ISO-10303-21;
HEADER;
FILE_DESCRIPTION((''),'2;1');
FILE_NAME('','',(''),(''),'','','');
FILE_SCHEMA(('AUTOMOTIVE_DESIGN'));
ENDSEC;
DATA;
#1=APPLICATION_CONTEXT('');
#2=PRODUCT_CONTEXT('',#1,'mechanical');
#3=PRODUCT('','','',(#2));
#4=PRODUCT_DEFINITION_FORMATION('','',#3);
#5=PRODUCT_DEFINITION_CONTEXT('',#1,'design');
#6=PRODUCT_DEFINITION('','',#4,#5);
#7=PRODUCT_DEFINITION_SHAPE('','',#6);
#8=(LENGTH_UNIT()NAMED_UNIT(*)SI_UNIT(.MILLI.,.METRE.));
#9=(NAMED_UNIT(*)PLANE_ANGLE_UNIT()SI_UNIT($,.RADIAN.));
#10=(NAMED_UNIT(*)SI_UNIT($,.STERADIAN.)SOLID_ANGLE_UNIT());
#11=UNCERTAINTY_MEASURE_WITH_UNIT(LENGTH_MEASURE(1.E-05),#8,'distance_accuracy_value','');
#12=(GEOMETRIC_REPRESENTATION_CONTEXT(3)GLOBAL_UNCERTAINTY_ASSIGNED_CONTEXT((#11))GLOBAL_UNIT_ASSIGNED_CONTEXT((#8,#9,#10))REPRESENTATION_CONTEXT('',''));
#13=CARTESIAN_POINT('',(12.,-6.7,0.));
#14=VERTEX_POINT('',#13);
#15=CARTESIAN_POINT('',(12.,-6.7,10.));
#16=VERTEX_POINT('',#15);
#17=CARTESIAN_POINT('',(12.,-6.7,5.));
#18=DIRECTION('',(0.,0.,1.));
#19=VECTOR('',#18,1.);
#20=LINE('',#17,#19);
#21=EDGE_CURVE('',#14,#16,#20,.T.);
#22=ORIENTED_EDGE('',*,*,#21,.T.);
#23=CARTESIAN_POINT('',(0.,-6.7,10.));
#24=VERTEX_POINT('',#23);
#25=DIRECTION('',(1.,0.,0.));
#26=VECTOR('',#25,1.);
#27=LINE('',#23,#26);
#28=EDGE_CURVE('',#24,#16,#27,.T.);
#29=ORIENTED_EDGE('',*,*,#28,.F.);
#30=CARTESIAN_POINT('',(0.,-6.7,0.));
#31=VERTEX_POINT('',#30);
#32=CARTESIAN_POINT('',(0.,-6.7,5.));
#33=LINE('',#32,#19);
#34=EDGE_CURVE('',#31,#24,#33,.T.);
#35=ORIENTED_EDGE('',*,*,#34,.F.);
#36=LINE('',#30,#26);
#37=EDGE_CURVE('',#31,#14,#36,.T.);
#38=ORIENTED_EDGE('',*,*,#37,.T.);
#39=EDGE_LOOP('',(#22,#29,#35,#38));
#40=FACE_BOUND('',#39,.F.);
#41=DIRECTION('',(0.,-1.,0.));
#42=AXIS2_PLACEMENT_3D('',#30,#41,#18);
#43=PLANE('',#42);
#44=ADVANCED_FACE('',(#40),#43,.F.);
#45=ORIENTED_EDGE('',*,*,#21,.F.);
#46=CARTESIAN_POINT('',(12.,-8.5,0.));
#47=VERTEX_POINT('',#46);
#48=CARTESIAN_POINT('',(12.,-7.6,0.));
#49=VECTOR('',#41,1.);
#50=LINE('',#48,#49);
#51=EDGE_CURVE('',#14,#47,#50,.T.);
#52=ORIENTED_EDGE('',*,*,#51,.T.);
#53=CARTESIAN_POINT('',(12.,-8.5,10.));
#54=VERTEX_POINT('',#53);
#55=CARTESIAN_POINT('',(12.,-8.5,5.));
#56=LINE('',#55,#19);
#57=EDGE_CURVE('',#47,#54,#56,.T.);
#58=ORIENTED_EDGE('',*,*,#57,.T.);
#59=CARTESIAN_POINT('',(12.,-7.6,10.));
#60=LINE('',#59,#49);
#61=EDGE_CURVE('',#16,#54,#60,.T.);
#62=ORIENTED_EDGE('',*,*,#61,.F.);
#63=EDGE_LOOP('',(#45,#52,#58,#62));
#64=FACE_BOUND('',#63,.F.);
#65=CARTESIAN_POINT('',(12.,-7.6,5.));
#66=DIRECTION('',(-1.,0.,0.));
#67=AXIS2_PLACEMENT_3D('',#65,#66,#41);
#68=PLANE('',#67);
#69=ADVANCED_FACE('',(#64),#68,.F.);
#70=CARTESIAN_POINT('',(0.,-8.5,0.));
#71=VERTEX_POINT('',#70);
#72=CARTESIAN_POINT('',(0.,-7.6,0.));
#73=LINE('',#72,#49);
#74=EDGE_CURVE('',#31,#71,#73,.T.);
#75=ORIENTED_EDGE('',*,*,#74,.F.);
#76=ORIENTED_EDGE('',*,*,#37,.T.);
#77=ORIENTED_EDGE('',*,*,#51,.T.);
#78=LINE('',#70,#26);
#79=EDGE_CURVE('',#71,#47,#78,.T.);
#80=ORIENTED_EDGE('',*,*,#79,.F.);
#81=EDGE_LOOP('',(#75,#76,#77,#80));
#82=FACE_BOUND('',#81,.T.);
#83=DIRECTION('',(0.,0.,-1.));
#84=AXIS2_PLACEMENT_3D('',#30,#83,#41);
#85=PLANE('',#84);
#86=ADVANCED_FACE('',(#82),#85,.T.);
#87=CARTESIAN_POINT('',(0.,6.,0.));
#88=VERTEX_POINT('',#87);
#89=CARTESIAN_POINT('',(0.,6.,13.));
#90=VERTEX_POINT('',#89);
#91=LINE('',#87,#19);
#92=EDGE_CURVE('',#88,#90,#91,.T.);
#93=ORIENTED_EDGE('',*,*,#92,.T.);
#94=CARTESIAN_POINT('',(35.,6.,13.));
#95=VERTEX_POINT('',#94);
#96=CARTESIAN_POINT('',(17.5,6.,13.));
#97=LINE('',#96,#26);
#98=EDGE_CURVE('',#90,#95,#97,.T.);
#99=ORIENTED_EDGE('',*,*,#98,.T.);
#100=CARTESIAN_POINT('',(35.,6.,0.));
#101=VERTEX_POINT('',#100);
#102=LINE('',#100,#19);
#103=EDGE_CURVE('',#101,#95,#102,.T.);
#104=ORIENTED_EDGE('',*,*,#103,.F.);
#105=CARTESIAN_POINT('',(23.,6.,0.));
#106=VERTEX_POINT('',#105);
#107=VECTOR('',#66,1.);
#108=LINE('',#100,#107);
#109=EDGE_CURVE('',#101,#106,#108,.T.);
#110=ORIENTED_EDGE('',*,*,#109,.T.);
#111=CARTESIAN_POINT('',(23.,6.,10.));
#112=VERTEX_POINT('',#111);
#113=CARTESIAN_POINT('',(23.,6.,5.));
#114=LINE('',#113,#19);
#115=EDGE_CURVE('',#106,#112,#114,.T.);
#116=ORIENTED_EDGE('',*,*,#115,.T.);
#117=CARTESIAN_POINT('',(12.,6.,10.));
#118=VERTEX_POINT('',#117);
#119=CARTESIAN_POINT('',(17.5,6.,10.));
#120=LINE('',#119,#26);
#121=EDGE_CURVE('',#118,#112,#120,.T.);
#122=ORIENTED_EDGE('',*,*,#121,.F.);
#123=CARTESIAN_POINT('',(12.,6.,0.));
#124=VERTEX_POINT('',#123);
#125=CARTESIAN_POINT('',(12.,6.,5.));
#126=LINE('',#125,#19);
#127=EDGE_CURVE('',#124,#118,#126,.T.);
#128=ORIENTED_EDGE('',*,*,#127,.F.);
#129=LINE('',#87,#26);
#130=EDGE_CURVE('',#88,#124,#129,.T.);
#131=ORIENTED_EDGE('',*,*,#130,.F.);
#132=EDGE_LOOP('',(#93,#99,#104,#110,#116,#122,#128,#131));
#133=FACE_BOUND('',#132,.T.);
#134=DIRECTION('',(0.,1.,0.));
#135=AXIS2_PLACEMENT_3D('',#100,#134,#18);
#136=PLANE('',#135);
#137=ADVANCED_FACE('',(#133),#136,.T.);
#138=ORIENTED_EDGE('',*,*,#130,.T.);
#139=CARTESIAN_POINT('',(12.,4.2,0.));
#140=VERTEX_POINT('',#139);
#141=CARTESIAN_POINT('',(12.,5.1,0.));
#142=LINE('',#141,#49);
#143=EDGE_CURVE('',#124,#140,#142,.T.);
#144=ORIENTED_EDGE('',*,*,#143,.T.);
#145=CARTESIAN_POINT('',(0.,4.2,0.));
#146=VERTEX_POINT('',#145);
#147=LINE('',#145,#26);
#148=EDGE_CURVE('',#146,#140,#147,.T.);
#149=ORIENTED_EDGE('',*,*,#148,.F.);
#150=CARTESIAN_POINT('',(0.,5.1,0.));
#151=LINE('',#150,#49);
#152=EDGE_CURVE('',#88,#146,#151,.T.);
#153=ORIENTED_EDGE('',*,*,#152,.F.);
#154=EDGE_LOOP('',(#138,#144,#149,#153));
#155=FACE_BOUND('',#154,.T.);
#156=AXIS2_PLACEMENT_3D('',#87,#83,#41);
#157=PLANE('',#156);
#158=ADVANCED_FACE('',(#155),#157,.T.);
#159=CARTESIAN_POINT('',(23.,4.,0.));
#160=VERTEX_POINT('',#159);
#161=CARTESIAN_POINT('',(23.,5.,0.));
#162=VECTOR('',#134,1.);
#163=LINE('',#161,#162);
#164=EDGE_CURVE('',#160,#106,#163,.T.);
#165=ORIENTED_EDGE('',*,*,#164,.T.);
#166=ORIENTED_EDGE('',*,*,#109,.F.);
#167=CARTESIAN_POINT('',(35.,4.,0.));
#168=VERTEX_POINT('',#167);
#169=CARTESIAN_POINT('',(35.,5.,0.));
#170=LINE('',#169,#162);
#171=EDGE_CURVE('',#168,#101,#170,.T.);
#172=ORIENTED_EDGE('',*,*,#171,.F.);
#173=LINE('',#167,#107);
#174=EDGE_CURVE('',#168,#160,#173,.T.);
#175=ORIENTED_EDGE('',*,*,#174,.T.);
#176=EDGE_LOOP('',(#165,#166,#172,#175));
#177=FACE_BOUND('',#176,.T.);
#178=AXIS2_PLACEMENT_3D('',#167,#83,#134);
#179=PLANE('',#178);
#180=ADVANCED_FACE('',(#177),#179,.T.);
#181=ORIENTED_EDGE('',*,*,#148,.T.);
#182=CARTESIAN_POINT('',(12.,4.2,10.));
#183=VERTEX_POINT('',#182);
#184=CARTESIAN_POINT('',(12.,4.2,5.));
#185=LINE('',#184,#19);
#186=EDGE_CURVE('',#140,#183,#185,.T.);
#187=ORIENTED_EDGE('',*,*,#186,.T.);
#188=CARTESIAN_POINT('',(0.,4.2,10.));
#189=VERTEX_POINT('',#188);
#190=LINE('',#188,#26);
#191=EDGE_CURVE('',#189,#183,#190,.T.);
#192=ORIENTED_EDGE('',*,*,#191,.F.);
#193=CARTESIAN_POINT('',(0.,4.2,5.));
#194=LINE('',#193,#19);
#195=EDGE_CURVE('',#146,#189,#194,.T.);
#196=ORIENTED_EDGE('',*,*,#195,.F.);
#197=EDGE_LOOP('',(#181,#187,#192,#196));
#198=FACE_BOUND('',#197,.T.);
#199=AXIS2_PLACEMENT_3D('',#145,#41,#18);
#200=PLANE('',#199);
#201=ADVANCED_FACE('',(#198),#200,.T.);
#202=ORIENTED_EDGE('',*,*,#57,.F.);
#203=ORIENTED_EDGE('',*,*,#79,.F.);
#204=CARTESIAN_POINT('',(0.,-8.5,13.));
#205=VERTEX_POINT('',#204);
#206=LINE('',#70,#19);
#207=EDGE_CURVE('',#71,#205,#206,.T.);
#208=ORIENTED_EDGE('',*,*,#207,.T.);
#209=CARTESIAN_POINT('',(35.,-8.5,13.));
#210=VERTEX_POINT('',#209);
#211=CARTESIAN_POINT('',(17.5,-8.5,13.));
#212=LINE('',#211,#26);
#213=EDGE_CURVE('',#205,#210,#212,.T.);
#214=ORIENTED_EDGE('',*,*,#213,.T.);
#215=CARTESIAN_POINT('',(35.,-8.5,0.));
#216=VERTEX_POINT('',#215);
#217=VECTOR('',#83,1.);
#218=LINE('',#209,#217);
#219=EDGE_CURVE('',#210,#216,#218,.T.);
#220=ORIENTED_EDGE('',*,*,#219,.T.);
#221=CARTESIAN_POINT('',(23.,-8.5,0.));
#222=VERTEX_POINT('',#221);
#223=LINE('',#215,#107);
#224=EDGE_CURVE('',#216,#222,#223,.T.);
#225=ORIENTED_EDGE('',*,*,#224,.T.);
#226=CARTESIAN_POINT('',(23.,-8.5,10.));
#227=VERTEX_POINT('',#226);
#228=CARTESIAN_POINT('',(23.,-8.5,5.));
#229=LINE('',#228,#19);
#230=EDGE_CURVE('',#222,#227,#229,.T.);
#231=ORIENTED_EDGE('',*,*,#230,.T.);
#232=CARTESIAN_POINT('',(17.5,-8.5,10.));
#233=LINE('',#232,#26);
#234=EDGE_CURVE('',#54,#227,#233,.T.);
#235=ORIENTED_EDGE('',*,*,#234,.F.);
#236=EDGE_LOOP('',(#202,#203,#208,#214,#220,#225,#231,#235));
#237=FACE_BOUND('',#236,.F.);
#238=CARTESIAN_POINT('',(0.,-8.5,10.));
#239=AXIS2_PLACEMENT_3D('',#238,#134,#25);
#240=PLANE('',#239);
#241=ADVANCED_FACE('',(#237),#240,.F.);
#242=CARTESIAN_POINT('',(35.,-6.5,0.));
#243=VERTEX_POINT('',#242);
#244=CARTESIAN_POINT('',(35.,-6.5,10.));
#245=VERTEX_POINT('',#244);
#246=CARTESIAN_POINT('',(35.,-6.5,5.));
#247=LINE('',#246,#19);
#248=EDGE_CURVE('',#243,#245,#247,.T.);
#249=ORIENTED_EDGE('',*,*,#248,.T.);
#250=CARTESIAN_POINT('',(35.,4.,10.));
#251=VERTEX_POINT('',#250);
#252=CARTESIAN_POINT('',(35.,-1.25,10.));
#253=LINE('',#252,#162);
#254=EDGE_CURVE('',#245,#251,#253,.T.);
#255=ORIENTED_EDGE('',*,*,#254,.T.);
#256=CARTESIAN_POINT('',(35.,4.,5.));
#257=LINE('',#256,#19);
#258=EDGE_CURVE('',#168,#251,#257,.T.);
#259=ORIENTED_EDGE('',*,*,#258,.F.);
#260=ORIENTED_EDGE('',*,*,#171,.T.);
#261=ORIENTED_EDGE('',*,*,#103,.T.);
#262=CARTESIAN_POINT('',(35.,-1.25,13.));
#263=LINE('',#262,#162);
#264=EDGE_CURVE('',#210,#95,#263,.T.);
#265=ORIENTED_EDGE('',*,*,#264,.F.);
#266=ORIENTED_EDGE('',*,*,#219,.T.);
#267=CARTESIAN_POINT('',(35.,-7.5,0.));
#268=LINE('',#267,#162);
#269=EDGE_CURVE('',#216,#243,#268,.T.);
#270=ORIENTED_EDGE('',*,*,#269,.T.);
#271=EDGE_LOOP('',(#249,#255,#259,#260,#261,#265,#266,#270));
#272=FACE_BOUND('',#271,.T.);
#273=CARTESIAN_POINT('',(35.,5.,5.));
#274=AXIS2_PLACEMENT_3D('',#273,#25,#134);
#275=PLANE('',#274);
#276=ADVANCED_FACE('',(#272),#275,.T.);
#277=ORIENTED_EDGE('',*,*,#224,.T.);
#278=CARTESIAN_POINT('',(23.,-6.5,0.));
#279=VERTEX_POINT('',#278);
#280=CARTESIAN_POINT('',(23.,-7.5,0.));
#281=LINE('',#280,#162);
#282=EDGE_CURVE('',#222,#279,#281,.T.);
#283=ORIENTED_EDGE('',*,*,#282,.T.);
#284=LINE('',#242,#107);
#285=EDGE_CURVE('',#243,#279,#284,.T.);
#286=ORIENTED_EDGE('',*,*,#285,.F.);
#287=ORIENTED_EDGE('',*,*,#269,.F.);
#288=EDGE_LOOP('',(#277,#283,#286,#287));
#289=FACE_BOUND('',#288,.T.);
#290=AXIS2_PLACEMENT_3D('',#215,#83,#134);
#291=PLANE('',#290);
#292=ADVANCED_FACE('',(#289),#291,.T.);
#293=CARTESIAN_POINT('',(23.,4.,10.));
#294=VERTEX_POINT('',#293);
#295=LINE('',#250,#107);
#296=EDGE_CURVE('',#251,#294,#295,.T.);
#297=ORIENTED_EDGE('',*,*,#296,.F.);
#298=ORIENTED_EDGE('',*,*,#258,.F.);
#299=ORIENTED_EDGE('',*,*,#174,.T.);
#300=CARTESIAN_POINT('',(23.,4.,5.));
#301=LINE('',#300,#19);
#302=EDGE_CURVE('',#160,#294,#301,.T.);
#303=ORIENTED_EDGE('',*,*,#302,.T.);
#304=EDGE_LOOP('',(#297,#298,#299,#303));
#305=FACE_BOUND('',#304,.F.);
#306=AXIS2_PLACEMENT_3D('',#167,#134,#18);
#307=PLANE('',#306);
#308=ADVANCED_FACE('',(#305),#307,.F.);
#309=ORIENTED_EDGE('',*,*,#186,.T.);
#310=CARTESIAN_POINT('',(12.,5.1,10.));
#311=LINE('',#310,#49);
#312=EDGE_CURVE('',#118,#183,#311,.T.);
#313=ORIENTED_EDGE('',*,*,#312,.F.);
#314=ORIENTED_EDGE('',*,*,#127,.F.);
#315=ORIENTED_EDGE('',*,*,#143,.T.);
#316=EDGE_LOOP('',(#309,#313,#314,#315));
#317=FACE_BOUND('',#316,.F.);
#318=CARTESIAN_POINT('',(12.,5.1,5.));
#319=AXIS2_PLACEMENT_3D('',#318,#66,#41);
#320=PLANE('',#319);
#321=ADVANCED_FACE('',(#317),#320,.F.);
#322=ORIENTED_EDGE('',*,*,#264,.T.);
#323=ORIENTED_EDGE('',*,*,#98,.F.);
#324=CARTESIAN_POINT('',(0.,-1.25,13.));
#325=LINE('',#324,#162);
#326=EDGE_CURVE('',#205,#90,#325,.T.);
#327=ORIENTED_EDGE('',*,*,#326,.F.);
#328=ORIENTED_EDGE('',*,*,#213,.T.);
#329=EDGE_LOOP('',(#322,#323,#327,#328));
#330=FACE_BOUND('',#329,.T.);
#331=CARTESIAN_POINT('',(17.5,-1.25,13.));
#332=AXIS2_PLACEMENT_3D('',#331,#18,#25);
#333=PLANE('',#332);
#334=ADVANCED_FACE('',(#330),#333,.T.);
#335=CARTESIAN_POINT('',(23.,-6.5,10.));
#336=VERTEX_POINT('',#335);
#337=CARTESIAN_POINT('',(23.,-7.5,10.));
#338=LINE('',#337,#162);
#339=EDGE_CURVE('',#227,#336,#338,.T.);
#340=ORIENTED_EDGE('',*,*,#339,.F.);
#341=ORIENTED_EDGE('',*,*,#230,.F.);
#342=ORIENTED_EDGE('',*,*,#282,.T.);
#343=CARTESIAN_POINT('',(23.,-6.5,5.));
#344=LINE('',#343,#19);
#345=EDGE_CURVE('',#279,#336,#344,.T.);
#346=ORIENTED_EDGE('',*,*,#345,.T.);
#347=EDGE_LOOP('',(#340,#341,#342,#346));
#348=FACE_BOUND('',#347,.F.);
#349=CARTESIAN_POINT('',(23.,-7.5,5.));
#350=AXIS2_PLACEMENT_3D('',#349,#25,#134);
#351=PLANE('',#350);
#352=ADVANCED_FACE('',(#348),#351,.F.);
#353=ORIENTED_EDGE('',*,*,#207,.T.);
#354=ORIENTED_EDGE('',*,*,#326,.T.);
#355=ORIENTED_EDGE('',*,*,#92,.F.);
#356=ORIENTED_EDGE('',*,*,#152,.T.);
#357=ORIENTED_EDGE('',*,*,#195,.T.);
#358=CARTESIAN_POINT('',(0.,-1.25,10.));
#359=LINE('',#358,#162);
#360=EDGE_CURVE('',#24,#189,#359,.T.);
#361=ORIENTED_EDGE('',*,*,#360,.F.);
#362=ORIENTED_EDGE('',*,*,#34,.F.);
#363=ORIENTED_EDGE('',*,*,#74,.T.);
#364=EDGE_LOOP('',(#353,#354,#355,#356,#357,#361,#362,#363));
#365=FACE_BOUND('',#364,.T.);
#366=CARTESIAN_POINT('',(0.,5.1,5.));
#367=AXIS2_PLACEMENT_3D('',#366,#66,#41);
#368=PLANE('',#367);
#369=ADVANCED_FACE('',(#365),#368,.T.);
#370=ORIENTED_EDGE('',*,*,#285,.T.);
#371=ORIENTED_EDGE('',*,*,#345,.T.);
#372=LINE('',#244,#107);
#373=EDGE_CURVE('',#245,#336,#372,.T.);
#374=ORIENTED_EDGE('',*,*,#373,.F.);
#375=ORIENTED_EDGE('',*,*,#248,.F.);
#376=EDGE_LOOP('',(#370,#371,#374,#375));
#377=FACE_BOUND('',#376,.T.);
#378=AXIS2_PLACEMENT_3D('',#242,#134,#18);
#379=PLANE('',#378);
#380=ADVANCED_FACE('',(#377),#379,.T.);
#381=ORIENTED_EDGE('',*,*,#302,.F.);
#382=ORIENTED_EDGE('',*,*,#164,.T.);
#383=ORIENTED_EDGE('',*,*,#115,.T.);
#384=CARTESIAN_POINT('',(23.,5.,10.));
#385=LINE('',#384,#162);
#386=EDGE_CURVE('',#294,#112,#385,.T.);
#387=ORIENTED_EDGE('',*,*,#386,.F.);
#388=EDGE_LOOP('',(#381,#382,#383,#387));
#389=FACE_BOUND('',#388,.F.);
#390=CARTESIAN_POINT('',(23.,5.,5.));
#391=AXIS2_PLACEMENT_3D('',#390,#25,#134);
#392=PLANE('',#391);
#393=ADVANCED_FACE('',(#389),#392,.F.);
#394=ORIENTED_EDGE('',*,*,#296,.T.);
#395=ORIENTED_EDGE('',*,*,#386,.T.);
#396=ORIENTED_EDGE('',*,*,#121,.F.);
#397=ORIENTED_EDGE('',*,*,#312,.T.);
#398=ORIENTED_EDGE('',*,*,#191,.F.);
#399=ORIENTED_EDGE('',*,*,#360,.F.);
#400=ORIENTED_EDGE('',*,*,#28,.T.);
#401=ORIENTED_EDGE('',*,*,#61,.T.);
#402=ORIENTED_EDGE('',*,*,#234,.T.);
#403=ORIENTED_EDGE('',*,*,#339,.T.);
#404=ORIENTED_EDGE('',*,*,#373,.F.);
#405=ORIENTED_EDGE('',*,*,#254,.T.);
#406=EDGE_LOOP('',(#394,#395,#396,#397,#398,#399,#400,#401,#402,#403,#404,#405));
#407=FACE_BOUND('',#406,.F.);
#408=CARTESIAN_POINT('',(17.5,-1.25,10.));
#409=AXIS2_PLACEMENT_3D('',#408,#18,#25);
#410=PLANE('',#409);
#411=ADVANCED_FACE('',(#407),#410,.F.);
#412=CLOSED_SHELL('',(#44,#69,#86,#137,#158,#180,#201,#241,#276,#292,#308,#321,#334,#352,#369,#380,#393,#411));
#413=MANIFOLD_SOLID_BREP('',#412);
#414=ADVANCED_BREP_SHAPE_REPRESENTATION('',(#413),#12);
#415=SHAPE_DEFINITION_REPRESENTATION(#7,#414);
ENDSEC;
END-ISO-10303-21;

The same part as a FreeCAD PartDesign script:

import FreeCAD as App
import Part
import Sketcher
from FreeCAD import Vector


def add_polygon(sketch, points):
    """Adds a closed chain of lines whose ends are joined by coincident constraints."""
    first, n = sketch.GeometryCount, len(points)
    for a, b in zip(points, points[1:] + points[:1]):
        sketch.addGeometry(Part.LineSegment(App.Vector(*a, 0), App.Vector(*b, 0)), False)
    for i in range(n):
        sketch.addConstraint(Sketcher.Constraint("Coincident", first + i, 2, first + (i + 1) % n, 1))

doc = App.newDocument("Part")
body = doc.addObject("PartDesign::Body", "Body")

# Sketch on XY plane
sketch1 = doc.addObject("Sketcher::SketchObject", "Sketch")
body.addObject(sketch1)
sketch1.AttachmentSupport = (doc.XY_Plane, [""])
sketch1.MapMode = "FlatFace"
sketch1.AttachmentOffset = App.Placement(Vector(0, 0, 10), App.Rotation())
add_polygon(sketch1, [(0, 6), (0, -8), (35, -8), (35, 6)])  # lines 0-3
sketch1.addConstraint([
    Sketcher.Constraint("Vertical", 0),
    Sketcher.Constraint("Horizontal", 1),
    Sketcher.Constraint("Vertical", 2),
    Sketcher.Constraint("Horizontal", 3),
    Sketcher.Constraint("PointOnObject", 0, 2, -2),
    Sketcher.Constraint("DistanceX", 1, 1, 1, 2, 35.0),
    Sketcher.Constraint("DistanceY", 0, 2, 0, 1, 14.5),
    Sketcher.Constraint("DistanceY", -1, 1, 2, 2, 6.0),
])
pad1 = doc.addObject("PartDesign::Pad", "Pad")
body.addObject(pad1)
pad1.Profile = sketch1
pad1.Length = 3

# Sketch on YZ plane
sketch2 = doc.addObject("Sketcher::SketchObject", "Sketch001")
body.addObject(sketch2)
sketch2.AttachmentSupport = (doc.YZ_Plane, [""])
sketch2.MapMode = "FlatFace"
add_polygon(sketch2, [(6, 10), (6, 0), (4.2, 0), (4.2, 10)])  # lines 0-3
add_polygon(sketch2, [(-6.7, 10), (-6.7, 0), (-8.5, 0), (-8.5, 10)])  # lines 4-7
sketch2.addConstraint([
    Sketcher.Constraint("Vertical", 0),
    Sketcher.Constraint("Horizontal", 1),
    Sketcher.Constraint("Vertical", 2),
    Sketcher.Constraint("Horizontal", 3),
    Sketcher.Constraint("Vertical", 4),
    Sketcher.Constraint("Horizontal", 5),
    Sketcher.Constraint("Vertical", 6),
    Sketcher.Constraint("Horizontal", 7),
    Sketcher.Constraint("PointOnObject", 0, 2, -1),
    Sketcher.Constraint("PointOnObject", 4, 2, -1),
    Sketcher.Constraint("Horizontal", 3, 2, 6, 2),
    Sketcher.Constraint("Equal", 3, 5),
    Sketcher.Constraint("DistanceY", 0, 2, 0, 1, 10.0),
    Sketcher.Constraint("DistanceX", 1, 2, 1, 1, 1.8),
    Sketcher.Constraint("DistanceX", -1, 1, 0, 2, 6.0),
    Sketcher.Constraint("DistanceX", 4, 2, -1, 1, 6.7),
])
pad2 = doc.addObject("PartDesign::Pad", "Pad001")
body.addObject(pad2)
pad2.Profile = sketch2
pad2.Length = 12

# Sketch on YZ plane
sketch3 = doc.addObject("Sketcher::SketchObject", "Sketch002")
body.addObject(sketch3)
sketch3.AttachmentSupport = (doc.YZ_Plane, [""])
sketch3.MapMode = "FlatFace"
sketch3.AttachmentOffset = App.Placement(Vector(0, 0, 35), App.Rotation())
add_polygon(sketch3, [(4, 10), (4, 0), (6, 0), (6, 10)])  # lines 0-3
add_polygon(sketch3, [(-8.5, 10), (-8.5, 0), (-6.5, 0), (-6.5, 10)])  # lines 4-7
sketch3.addConstraint([
    Sketcher.Constraint("Vertical", 0),
    Sketcher.Constraint("Horizontal", 1),
    Sketcher.Constraint("Vertical", 2),
    Sketcher.Constraint("Horizontal", 3),
    Sketcher.Constraint("Vertical", 4),
    Sketcher.Constraint("Horizontal", 5),
    Sketcher.Constraint("Vertical", 6),
    Sketcher.Constraint("Horizontal", 7),
    Sketcher.Constraint("PointOnObject", 0, 2, -1),
    Sketcher.Constraint("PointOnObject", 4, 2, -1),
    Sketcher.Constraint("Horizontal", 3, 2, 6, 2),
    Sketcher.Constraint("Equal", 3, 5),
    Sketcher.Constraint("DistanceX", 1, 1, 1, 2, 2.0),
    Sketcher.Constraint("DistanceY", 0, 2, 0, 1, 10.0),
    Sketcher.Constraint("DistanceX", -1, 1, 0, 2, 4.0),
    Sketcher.Constraint("DistanceX", 4, 2, -1, 1, 8.5),
])
pad3 = doc.addObject("PartDesign::Pad", "Pad002")
body.addObject(pad3)
pad3.Profile = sketch3
pad3.Length = 12
pad3.Reversed = True

doc.recompute()
